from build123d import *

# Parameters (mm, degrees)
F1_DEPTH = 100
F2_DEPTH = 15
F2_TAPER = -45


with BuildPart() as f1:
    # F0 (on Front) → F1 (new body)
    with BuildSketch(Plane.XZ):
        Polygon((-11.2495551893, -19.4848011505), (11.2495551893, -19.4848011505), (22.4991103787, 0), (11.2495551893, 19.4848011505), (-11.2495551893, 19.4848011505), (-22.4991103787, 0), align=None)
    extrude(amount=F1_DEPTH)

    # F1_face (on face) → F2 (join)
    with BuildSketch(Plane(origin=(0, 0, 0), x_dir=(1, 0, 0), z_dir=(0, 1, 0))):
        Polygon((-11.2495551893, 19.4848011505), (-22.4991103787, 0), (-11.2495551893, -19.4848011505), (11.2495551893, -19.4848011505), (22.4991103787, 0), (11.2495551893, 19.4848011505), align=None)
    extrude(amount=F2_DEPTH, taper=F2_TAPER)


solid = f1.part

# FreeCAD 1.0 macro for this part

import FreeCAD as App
import Part
import Sketcher
from FreeCAD import Vector
Q = App.Units.Quantity

doc = App.newDocument("Part")
body = doc.addObject("PartDesign::Body", "Body")

# Sketch on XZ plane
sketch1 = body.newObject("Sketcher::SketchObject", "Sketch")
sketch1.AttachmentSupport = (doc.getObject("XZ_Plane"), [""])
sketch1.MapMode = "FlatFace"
sketch1.addGeometry(Part.LineSegment(Vector(-11, -19, 0), Vector(11, -19, 0)), False)
sketch1.addGeometry(Part.LineSegment(Vector(11, -19, 0), Vector(22, 0, 0)), False)
sketch1.addGeometry(Part.LineSegment(Vector(22, 0, 0), Vector(11, 19, 0)), False)
sketch1.addGeometry(Part.LineSegment(Vector(11, 19, 0), Vector(-11, 19, 0)), False)
sketch1.addGeometry(Part.LineSegment(Vector(-11, 19, 0), Vector(-22, 0, 0)), False)
sketch1.addGeometry(Part.LineSegment(Vector(-22, 0, 0), Vector(-11, -19, 0)), False)
sketch1.addConstraint(Sketcher.Constraint("Coincident", 0, 2, 1, 1))
sketch1.addConstraint(Sketcher.Constraint("Coincident", 1, 2, 2, 1))
sketch1.addConstraint(Sketcher.Constraint("Coincident", 2, 2, 3, 1))
sketch1.addConstraint(Sketcher.Constraint("Coincident", 3, 2, 4, 1))
sketch1.addConstraint(Sketcher.Constraint("Coincident", 4, 2, 5, 1))
sketch1.addConstraint(Sketcher.Constraint("Coincident", 5, 2, 0, 1))
sketch1.addConstraint(Sketcher.Constraint("Horizontal", 0))
sketch1.addConstraint(Sketcher.Constraint("Horizontal", 3))
sketch1.addConstraint(Sketcher.Constraint("Symmetric", 0, 2, 3, 2, -1, 1))
sketch1.addConstraint(Sketcher.Constraint("Symmetric", 1, 2, 4, 2, -1, 1))
sketch1.addConstraint(Sketcher.Constraint("PointOnObject", 1, 2, -1))
sketch1.addConstraint(Sketcher.Constraint("Parallel", 2, 5))
sketch1.addConstraint(Sketcher.Constraint("Vertical", 0, 2, 2, 2))
sketch1.addConstraint(Sketcher.Constraint("Angle", 1, Q("60 deg")))
sketch1.addConstraint(Sketcher.Constraint("DistanceX", 0, 1, 0, 2, Q("22.49911 mm")))
sketch1.addConstraint(Sketcher.Constraint("DistanceY", 0, 2, -1, 1, Q("19.484801 mm")))
pad1 = body.newObject("PartDesign::Pad", "Pad")
pad1.Profile = sketch1
pad1.Length = 100

# Sketch on XZ plane
sketch2 = body.newObject("Sketcher::SketchObject", "Sketch001")
sketch2.AttachmentSupport = (doc.getObject("XZ_Plane"), [""])
sketch2.MapMode = "FlatFace"
sketch2.addGeometry(Part.LineSegment(Vector(-11, -19, 0), Vector(-22, 0, 0)), False)
sketch2.addGeometry(Part.LineSegment(Vector(-22, 0, 0), Vector(-11, 19, 0)), False)
sketch2.addGeometry(Part.LineSegment(Vector(-11, 19, 0), Vector(11, 19, 0)), False)
sketch2.addGeometry(Part.LineSegment(Vector(11, 19, 0), Vector(22, 0, 0)), False)
sketch2.addGeometry(Part.LineSegment(Vector(22, 0, 0), Vector(11, -19, 0)), False)
sketch2.addGeometry(Part.LineSegment(Vector(11, -19, 0), Vector(-11, -19, 0)), False)
sketch2.addConstraint(Sketcher.Constraint("Coincident", 0, 2, 1, 1))
sketch2.addConstraint(Sketcher.Constraint("Coincident", 1, 2, 2, 1))
sketch2.addConstraint(Sketcher.Constraint("Coincident", 2, 2, 3, 1))
sketch2.addConstraint(Sketcher.Constraint("Coincident", 3, 2, 4, 1))
sketch2.addConstraint(Sketcher.Constraint("Coincident", 4, 2, 5, 1))
sketch2.addConstraint(Sketcher.Constraint("Coincident", 5, 2, 0, 1))
sketch2.addConstraint(Sketcher.Constraint("Horizontal", 2))
sketch2.addConstraint(Sketcher.Constraint("Horizontal", 5))
sketch2.addConstraint(Sketcher.Constraint("Symmetric", 0, 2, 3, 2, -1, 1))
sketch2.addConstraint(Sketcher.Constraint("Symmetric", 1, 2, 4, 2, -1, 1))
sketch2.addConstraint(Sketcher.Constraint("PointOnObject", 0, 2, -1))
sketch2.addConstraint(Sketcher.Constraint("Parallel", 0, 3))
sketch2.addConstraint(Sketcher.Constraint("Vertical", 2, 2, 4, 2))
sketch2.addConstraint(Sketcher.Constraint("Angle", 0, Q("120 deg")))
sketch2.addConstraint(Sketcher.Constraint("DistanceX", 2, 1, 2, 2, Q("22.49911 mm")))
sketch2.addConstraint(Sketcher.Constraint("DistanceY", -1, 1, 1, 2, Q("19.484801 mm")))
pad2 = body.newObject("PartDesign::Pad", "Pad001")
pad2.Profile = sketch2
pad2.Length = 15
pad2.Reversed = True
pad2.TaperAngle = 45

doc.recompute()
